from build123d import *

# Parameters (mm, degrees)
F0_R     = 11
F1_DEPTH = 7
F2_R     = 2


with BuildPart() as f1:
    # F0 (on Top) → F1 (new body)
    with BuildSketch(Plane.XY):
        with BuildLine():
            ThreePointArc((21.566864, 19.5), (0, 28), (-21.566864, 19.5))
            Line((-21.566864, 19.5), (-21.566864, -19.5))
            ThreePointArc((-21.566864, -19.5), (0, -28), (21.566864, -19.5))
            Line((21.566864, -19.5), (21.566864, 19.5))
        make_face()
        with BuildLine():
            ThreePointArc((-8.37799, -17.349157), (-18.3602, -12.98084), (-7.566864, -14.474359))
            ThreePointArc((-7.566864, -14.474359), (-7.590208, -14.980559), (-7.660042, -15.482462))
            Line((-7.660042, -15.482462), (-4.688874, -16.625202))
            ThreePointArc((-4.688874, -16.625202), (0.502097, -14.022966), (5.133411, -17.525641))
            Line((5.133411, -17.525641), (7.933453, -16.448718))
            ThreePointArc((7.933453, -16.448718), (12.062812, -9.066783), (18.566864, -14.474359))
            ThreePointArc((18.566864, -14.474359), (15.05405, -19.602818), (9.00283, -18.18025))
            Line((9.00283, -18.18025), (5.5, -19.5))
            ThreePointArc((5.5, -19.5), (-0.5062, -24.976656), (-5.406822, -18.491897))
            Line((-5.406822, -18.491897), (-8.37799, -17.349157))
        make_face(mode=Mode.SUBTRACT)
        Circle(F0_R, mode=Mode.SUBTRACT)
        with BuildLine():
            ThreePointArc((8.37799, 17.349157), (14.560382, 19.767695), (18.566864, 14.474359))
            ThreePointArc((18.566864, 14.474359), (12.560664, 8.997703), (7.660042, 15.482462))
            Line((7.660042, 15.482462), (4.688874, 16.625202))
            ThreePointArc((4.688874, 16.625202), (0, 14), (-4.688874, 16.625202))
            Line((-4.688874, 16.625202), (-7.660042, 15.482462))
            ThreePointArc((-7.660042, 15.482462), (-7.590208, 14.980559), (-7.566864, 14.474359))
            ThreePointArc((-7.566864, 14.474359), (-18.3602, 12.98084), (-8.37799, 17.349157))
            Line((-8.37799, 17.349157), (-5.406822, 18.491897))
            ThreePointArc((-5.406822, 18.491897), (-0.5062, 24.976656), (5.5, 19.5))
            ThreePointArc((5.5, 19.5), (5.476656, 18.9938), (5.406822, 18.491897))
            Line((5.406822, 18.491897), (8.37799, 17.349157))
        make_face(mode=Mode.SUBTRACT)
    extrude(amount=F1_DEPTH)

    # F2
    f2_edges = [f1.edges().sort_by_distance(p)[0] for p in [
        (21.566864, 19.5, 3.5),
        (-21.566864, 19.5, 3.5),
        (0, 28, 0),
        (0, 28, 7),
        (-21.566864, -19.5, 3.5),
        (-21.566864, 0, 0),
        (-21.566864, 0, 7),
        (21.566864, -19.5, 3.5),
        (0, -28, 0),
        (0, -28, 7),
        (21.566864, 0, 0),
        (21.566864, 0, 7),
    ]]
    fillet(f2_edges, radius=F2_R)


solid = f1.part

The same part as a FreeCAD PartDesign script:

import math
import FreeCAD as App
import Part
import Sketcher

V = App.Vector


def edges_at(feature, points):
    """Names of the edges that pass closest to the given points."""
    edges = feature.Shape.Edges
    near = lambda p: min(range(len(edges)), key=lambda i: edges[i].distToShape(Part.Vertex(*p))[0])
    return sorted({f"Edge{near(p) + 1}" for p in points})

doc = App.newDocument("Part")
body = doc.addObject("PartDesign::Body", "Body")

# Sketch on XY plane
sketch1 = doc.addObject("Sketcher::SketchObject", "Sketch")
body.addObject(sketch1)
sketch1.AttachmentSupport = (doc.XY_Plane, [""])
sketch1.MapMode = "FlatFace"
sketch1.addGeometry([
    Part.ArcOfCircle(Part.Circle(V(0, -3.610566, 0), V(0, 0, 1), 31.610566), math.radians(46.978906), math.radians(133.021094)),  # 0
    Part.LineSegment(V(-21.566864, 19.5, 0), V(-21.566864, -19.5, 0)),  # 1
    Part.ArcOfCircle(Part.Circle(V(0, 3.610566, 0), V(0, 0, 1), 31.610566), math.radians(-133.021094), math.radians(-46.978906)),  # 2
    Part.LineSegment(V(21.566864, -19.5, 0), V(21.566864, 19.5, 0)),  # 3
    Part.LineSegment(V(-5.406822, -18.491897, 0), V(-8.37799, -17.349157, 0)),  # 4
    Part.ArcOfCircle(Part.Circle(V(-13.066864, -14.474359, 0), V(0, 0, 1), 5.5), math.radians(0.000004), math.radians(328.487105)),  # 5
    Part.ArcOfCircle(Part.Circle(V(-13.066832, -14.47436, 0), V(0, 0, 1), 5.499968), math.radians(-10.561589), math.radians(0.000009)),  # 6
    Part.LineSegment(V(-7.660042, -15.482462, 0), V(-4.688874, -16.625202, 0)),  # 7
    Part.ArcOfCircle(Part.Circle(V(0, -19.5, 0), V(0, 0, 1), 5.5), math.radians(21.03722), math.radians(148.4871)),  # 8
    Part.LineSegment(V(5.133411, -17.525641, 0), V(7.933453, -16.448718, 0)),  # 9
    Part.ArcOfCircle(Part.Circle(V(13.066864, -14.474359, 0), V(0, 0, 1), 5.5), math.radians(0.000002), math.radians(201.037219)),  # 10
    Part.ArcOfCircle(Part.Circle(V(13.066864, -14.474359, 0), V(0, 0, 1), 5.5), math.radians(-137.639094), math.radians(0)),  # 11
    Part.LineSegment(V(9.00283, -18.18025, 0), V(5.5, -19.5, 0)),  # 12
    Part.ArcOfCircle(Part.Circle(V(0, -19.5, 0), V(0, 0, 1), 5.5), math.radians(169.438461), math.radians(360.000001)),  # 13
    Part.Circle(V(0, 0, 0), V(0, 0, 1), 11),  # 14
    Part.LineSegment(V(5.406822, 18.491897, 0), V(8.37799, 17.349157, 0)),  # 15
    Part.ArcOfCircle(Part.Circle(V(13.066864, 14.474359, 0), V(0, 0, 1), 5.5), math.radians(-0.000001), math.radians(148.4871)),  # 16
    Part.ArcOfCircle(Part.Circle(V(13.066864, 14.474359, 0), V(0, 0, 1), 5.5), math.radians(169.438461), math.radians(360.000001)),  # 17
    Part.LineSegment(V(7.660042, 15.482462, 0), V(4.688874, 16.625202, 0)),  # 18
    Part.ArcOfCircle(Part.Circle(V(0, 19.500001, 0), V(0, 0, 1), 5.500001), math.radians(-148.487095), math.radians(-31.512905)),  # 19
    Part.LineSegment(V(-4.688874, 16.625202, 0), V(-7.660042, 15.482462, 0)),  # 20
    Part.ArcOfCircle(Part.Circle(V(-13.066832, 14.47436, 0), V(0, 0, 1), 5.499968), math.radians(-0.000009), math.radians(10.561589)),  # 21
    Part.ArcOfCircle(Part.Circle(V(-13.066864, 14.474359, 0), V(0, 0, 1), 5.5), math.radians(31.512895), math.radians(359.999996)),  # 22
    Part.LineSegment(V(-8.37799, 17.349157, 0), V(-5.406822, 18.491897, 0)),  # 23
    Part.ArcOfCircle(Part.Circle(V(0, 19.5, 0), V(0, 0, 1), 5.5), math.radians(-0.000001), math.radians(190.561539)),  # 24
    Part.ArcOfCircle(Part.Circle(V(0.000032, 19.499999, 0), V(0, 0, 1), 5.499968), math.radians(-10.561589), math.radians(0.000009)),  # 25
], False)
sketch1.addConstraint([
    Sketcher.Constraint("Coincident", 0, 2, 1, 1),
    Sketcher.Constraint("Coincident", 1, 2, 2, 1),
    Sketcher.Constraint("Coincident", 2, 2, 3, 1),
    Sketcher.Constraint("Coincident", 3, 2, 0, 1),
    Sketcher.Constraint("Coincident", 4, 2, 5, 2),
    Sketcher.Constraint("Coincident", 5, 1, 6, 2),
    Sketcher.Constraint("Coincident", 6, 1, 7, 1),
    Sketcher.Constraint("Coincident", 7, 2, 8, 2),
    Sketcher.Constraint("Coincident", 8, 1, 9, 1),
    Sketcher.Constraint("Coincident", 9, 2, 10, 2),
    Sketcher.Constraint("Coincident", 10, 1, 11, 2),
    Sketcher.Constraint("Coincident", 11, 1, 12, 1),
    Sketcher.Constraint("Coincident", 12, 2, 13, 2),
    Sketcher.Constraint("Coincident", 13, 1, 4, 1),
    Sketcher.Constraint("Coincident", 15, 2, 16, 2),
    Sketcher.Constraint("Coincident", 16, 1, 17, 2),
    Sketcher.Constraint("Coincident", 17, 1, 18, 1),
    Sketcher.Constraint("Coincident", 18, 2, 19, 2),
    Sketcher.Constraint("Coincident", 19, 1, 20, 1),
    Sketcher.Constraint("Coincident", 20, 2, 21, 2),
    Sketcher.Constraint("Coincident", 21, 1, 22, 2),
    Sketcher.Constraint("Coincident", 22, 1, 23, 1),
    Sketcher.Constraint("Coincident", 23, 2, 24, 2),
    Sketcher.Constraint("Coincident", 24, 1, 25, 2),
    Sketcher.Constraint("Coincident", 25, 1, 15, 1),
    Sketcher.Constraint("Vertical", 1),
    Sketcher.Constraint("Vertical", 3),
    Sketcher.Constraint("Coincident", 14, 3, -1, 1),
    Sketcher.Constraint("Coincident", 11, 3, 10, 3),
    Sketcher.Constraint("Coincident", 13, 3, 8, 3),
    Sketcher.Constraint("Coincident", 17, 3, 16, 3),
    Sketcher.Constraint("Coincident", 24, 3, 19, 3),
    Sketcher.Constraint("PointOnObject", 0, 3, -2),
    Sketcher.Constraint("PointOnObject", 2, 3, -2),
    Sketcher.Constraint("PointOnObject", 8, 3, -2),
    Sketcher.Constraint("PointOnObject", 19, 3, -2),
    Sketcher.Constraint("Diameter", 14, 22.0),
    Sketcher.Constraint("Radius", 5, 5.5),
    Sketcher.Constraint("Radius", 8, 5.5),
    Sketcher.Constraint("Radius", 10, 5.5),
    Sketcher.Constraint("Radius", 13, 5.5),
    Sketcher.Constraint("Radius", 16, 5.5),
    Sketcher.Constraint("Radius", 19, 5.500001),
    Sketcher.Constraint("Radius", 22, 5.5),
    Sketcher.Constraint("Radius", 24, 5.5),
    Sketcher.Constraint("DistanceY", 1, 2, 1, 1, 39.0),
    Sketcher.Constraint("DistanceY", 3, 1, 3, 2, 39.0),
    Sketcher.Constraint("Distance", 9, 3.0),
    Sketcher.Constraint("DistanceX", 10, 1, 2, 2, 3.0),
    Sketcher.Constraint("DistanceX", 16, 1, 3, 2, 3.0),
    Sketcher.Constraint("DistanceY", 8, 3, -1, 1, 19.5),
    Sketcher.Constraint("DistanceY", -1, 1, 19, 3, 19.500001),
    Sketcher.Constraint("DistanceY", -1, 1, 25, 3, 19.499999),
    Sketcher.Constraint("DistanceY", -1, 1, 0, 2, 19.5),
    Sketcher.Constraint("DistanceY", 12, 2, -1, 1, 19.5),
    Sketcher.Constraint("DistanceY", -1, 1, 24, 1, 19.5),
    Sketcher.Constraint("DistanceX", 0, 2, 22, 3, 8.5),
    Sketcher.Constraint("DistanceX", 1, 2, 5, 3, 8.5),
    Sketcher.Constraint("Radius", 6, 5.499968),
    Sketcher.Constraint("Radius", 21, 5.499968),
    Sketcher.Constraint("Radius", 25, 5.499968),
    Sketcher.Constraint("Radius", 0, 31.610566),
    Sketcher.Constraint("Radius", 2, 31.610566),
    Sketcher.Constraint("Distance", 12, 3.743202),
    Sketcher.Constraint("DistanceY", -1, 1, 19, 1, 16.625202),
    Sketcher.Constraint("DistanceY", 4, 2, 5, 1, 2.874798),
    Sketcher.Constraint("DistanceY", 13, 3, 7, 2, 2.874798),
    Sketcher.Constraint("DistanceY", 17, 3, 15, 2, 2.874798),
    Sketcher.Constraint("DistanceY", 16, 1, 15, 2, 2.874798),
    Sketcher.Constraint("DistanceY", 18, 2, 24, 3, 2.874798),
    Sketcher.Constraint("DistanceY", 5, 3, -1, 1, 14.474359),
    Sketcher.Constraint("DistanceY", 6, 3, -1, 1, 14.47436),
    Sketcher.Constraint("DistanceY", 10, 3, -1, 1, 14.474359),
    Sketcher.Constraint("DistanceY", -1, 1, 16, 3, 14.474359),
    Sketcher.Constraint("DistanceY", -1, 1, 21, 3, 14.47436),
    Sketcher.Constraint("DistanceY", -1, 1, 22, 3, 14.474359),
    Sketcher.Constraint("DistanceX", 4, 2, -1, 1, 8.37799),
    Sketcher.Constraint("DistanceX", 6, 1, -1, 1, 7.660042),
    Sketcher.Constraint("DistanceX", -1, 1, 8, 1, 5.133411),
    Sketcher.Constraint("DistanceY", 10, 1, -1, 1, 14.474359),
    Sketcher.Constraint("DistanceX", 13, 1, -1, 1, 5.406822),
    Sketcher.Constraint("DistanceY", -1, 1, 17, 1, 15.482462),
    Sketcher.Constraint("DistanceX", 20, 2, -1, 1, 7.660042),
    Sketcher.Constraint("DistanceY", -1, 1, 21, 1, 14.474359),
    Sketcher.Constraint("DistanceX", 22, 1, -1, 1, 8.37799),
    Sketcher.Constraint("DistanceX", 8, 1, 9, 2, 2.800042),
    Sketcher.Constraint("DistanceX", 22, 1, 23, 2, 2.971168),
    Sketcher.Constraint("DistanceX", 18, 2, 25, 1, 0.717948),
])
pad1 = doc.addObject("PartDesign::Pad", "Pad")
body.addObject(pad1)
pad1.Profile = sketch1
pad1.Length = 7
doc.recompute()

fillet = doc.addObject("PartDesign::Fillet", "Fillet")
body.addObject(fillet)
fillet.Base = (pad1, edges_at(pad1, [
    (21.567, 19.5, 3.5),
    (-21.567, 19.5, 3.5),
    (0, 28, 0),
    (0, 28, 7),
    (-21.567, -19.5, 3.5),
    (-21.567, 0, 0),
    (-21.567, 0, 7),
    (21.567, -19.5, 3.5),
    (0, -28, 0),
    (0, -28, 7),
    (21.567, 0, 0),
    (21.567, 0, 7),
]))
fillet.Radius = 2

doc.recompute()
